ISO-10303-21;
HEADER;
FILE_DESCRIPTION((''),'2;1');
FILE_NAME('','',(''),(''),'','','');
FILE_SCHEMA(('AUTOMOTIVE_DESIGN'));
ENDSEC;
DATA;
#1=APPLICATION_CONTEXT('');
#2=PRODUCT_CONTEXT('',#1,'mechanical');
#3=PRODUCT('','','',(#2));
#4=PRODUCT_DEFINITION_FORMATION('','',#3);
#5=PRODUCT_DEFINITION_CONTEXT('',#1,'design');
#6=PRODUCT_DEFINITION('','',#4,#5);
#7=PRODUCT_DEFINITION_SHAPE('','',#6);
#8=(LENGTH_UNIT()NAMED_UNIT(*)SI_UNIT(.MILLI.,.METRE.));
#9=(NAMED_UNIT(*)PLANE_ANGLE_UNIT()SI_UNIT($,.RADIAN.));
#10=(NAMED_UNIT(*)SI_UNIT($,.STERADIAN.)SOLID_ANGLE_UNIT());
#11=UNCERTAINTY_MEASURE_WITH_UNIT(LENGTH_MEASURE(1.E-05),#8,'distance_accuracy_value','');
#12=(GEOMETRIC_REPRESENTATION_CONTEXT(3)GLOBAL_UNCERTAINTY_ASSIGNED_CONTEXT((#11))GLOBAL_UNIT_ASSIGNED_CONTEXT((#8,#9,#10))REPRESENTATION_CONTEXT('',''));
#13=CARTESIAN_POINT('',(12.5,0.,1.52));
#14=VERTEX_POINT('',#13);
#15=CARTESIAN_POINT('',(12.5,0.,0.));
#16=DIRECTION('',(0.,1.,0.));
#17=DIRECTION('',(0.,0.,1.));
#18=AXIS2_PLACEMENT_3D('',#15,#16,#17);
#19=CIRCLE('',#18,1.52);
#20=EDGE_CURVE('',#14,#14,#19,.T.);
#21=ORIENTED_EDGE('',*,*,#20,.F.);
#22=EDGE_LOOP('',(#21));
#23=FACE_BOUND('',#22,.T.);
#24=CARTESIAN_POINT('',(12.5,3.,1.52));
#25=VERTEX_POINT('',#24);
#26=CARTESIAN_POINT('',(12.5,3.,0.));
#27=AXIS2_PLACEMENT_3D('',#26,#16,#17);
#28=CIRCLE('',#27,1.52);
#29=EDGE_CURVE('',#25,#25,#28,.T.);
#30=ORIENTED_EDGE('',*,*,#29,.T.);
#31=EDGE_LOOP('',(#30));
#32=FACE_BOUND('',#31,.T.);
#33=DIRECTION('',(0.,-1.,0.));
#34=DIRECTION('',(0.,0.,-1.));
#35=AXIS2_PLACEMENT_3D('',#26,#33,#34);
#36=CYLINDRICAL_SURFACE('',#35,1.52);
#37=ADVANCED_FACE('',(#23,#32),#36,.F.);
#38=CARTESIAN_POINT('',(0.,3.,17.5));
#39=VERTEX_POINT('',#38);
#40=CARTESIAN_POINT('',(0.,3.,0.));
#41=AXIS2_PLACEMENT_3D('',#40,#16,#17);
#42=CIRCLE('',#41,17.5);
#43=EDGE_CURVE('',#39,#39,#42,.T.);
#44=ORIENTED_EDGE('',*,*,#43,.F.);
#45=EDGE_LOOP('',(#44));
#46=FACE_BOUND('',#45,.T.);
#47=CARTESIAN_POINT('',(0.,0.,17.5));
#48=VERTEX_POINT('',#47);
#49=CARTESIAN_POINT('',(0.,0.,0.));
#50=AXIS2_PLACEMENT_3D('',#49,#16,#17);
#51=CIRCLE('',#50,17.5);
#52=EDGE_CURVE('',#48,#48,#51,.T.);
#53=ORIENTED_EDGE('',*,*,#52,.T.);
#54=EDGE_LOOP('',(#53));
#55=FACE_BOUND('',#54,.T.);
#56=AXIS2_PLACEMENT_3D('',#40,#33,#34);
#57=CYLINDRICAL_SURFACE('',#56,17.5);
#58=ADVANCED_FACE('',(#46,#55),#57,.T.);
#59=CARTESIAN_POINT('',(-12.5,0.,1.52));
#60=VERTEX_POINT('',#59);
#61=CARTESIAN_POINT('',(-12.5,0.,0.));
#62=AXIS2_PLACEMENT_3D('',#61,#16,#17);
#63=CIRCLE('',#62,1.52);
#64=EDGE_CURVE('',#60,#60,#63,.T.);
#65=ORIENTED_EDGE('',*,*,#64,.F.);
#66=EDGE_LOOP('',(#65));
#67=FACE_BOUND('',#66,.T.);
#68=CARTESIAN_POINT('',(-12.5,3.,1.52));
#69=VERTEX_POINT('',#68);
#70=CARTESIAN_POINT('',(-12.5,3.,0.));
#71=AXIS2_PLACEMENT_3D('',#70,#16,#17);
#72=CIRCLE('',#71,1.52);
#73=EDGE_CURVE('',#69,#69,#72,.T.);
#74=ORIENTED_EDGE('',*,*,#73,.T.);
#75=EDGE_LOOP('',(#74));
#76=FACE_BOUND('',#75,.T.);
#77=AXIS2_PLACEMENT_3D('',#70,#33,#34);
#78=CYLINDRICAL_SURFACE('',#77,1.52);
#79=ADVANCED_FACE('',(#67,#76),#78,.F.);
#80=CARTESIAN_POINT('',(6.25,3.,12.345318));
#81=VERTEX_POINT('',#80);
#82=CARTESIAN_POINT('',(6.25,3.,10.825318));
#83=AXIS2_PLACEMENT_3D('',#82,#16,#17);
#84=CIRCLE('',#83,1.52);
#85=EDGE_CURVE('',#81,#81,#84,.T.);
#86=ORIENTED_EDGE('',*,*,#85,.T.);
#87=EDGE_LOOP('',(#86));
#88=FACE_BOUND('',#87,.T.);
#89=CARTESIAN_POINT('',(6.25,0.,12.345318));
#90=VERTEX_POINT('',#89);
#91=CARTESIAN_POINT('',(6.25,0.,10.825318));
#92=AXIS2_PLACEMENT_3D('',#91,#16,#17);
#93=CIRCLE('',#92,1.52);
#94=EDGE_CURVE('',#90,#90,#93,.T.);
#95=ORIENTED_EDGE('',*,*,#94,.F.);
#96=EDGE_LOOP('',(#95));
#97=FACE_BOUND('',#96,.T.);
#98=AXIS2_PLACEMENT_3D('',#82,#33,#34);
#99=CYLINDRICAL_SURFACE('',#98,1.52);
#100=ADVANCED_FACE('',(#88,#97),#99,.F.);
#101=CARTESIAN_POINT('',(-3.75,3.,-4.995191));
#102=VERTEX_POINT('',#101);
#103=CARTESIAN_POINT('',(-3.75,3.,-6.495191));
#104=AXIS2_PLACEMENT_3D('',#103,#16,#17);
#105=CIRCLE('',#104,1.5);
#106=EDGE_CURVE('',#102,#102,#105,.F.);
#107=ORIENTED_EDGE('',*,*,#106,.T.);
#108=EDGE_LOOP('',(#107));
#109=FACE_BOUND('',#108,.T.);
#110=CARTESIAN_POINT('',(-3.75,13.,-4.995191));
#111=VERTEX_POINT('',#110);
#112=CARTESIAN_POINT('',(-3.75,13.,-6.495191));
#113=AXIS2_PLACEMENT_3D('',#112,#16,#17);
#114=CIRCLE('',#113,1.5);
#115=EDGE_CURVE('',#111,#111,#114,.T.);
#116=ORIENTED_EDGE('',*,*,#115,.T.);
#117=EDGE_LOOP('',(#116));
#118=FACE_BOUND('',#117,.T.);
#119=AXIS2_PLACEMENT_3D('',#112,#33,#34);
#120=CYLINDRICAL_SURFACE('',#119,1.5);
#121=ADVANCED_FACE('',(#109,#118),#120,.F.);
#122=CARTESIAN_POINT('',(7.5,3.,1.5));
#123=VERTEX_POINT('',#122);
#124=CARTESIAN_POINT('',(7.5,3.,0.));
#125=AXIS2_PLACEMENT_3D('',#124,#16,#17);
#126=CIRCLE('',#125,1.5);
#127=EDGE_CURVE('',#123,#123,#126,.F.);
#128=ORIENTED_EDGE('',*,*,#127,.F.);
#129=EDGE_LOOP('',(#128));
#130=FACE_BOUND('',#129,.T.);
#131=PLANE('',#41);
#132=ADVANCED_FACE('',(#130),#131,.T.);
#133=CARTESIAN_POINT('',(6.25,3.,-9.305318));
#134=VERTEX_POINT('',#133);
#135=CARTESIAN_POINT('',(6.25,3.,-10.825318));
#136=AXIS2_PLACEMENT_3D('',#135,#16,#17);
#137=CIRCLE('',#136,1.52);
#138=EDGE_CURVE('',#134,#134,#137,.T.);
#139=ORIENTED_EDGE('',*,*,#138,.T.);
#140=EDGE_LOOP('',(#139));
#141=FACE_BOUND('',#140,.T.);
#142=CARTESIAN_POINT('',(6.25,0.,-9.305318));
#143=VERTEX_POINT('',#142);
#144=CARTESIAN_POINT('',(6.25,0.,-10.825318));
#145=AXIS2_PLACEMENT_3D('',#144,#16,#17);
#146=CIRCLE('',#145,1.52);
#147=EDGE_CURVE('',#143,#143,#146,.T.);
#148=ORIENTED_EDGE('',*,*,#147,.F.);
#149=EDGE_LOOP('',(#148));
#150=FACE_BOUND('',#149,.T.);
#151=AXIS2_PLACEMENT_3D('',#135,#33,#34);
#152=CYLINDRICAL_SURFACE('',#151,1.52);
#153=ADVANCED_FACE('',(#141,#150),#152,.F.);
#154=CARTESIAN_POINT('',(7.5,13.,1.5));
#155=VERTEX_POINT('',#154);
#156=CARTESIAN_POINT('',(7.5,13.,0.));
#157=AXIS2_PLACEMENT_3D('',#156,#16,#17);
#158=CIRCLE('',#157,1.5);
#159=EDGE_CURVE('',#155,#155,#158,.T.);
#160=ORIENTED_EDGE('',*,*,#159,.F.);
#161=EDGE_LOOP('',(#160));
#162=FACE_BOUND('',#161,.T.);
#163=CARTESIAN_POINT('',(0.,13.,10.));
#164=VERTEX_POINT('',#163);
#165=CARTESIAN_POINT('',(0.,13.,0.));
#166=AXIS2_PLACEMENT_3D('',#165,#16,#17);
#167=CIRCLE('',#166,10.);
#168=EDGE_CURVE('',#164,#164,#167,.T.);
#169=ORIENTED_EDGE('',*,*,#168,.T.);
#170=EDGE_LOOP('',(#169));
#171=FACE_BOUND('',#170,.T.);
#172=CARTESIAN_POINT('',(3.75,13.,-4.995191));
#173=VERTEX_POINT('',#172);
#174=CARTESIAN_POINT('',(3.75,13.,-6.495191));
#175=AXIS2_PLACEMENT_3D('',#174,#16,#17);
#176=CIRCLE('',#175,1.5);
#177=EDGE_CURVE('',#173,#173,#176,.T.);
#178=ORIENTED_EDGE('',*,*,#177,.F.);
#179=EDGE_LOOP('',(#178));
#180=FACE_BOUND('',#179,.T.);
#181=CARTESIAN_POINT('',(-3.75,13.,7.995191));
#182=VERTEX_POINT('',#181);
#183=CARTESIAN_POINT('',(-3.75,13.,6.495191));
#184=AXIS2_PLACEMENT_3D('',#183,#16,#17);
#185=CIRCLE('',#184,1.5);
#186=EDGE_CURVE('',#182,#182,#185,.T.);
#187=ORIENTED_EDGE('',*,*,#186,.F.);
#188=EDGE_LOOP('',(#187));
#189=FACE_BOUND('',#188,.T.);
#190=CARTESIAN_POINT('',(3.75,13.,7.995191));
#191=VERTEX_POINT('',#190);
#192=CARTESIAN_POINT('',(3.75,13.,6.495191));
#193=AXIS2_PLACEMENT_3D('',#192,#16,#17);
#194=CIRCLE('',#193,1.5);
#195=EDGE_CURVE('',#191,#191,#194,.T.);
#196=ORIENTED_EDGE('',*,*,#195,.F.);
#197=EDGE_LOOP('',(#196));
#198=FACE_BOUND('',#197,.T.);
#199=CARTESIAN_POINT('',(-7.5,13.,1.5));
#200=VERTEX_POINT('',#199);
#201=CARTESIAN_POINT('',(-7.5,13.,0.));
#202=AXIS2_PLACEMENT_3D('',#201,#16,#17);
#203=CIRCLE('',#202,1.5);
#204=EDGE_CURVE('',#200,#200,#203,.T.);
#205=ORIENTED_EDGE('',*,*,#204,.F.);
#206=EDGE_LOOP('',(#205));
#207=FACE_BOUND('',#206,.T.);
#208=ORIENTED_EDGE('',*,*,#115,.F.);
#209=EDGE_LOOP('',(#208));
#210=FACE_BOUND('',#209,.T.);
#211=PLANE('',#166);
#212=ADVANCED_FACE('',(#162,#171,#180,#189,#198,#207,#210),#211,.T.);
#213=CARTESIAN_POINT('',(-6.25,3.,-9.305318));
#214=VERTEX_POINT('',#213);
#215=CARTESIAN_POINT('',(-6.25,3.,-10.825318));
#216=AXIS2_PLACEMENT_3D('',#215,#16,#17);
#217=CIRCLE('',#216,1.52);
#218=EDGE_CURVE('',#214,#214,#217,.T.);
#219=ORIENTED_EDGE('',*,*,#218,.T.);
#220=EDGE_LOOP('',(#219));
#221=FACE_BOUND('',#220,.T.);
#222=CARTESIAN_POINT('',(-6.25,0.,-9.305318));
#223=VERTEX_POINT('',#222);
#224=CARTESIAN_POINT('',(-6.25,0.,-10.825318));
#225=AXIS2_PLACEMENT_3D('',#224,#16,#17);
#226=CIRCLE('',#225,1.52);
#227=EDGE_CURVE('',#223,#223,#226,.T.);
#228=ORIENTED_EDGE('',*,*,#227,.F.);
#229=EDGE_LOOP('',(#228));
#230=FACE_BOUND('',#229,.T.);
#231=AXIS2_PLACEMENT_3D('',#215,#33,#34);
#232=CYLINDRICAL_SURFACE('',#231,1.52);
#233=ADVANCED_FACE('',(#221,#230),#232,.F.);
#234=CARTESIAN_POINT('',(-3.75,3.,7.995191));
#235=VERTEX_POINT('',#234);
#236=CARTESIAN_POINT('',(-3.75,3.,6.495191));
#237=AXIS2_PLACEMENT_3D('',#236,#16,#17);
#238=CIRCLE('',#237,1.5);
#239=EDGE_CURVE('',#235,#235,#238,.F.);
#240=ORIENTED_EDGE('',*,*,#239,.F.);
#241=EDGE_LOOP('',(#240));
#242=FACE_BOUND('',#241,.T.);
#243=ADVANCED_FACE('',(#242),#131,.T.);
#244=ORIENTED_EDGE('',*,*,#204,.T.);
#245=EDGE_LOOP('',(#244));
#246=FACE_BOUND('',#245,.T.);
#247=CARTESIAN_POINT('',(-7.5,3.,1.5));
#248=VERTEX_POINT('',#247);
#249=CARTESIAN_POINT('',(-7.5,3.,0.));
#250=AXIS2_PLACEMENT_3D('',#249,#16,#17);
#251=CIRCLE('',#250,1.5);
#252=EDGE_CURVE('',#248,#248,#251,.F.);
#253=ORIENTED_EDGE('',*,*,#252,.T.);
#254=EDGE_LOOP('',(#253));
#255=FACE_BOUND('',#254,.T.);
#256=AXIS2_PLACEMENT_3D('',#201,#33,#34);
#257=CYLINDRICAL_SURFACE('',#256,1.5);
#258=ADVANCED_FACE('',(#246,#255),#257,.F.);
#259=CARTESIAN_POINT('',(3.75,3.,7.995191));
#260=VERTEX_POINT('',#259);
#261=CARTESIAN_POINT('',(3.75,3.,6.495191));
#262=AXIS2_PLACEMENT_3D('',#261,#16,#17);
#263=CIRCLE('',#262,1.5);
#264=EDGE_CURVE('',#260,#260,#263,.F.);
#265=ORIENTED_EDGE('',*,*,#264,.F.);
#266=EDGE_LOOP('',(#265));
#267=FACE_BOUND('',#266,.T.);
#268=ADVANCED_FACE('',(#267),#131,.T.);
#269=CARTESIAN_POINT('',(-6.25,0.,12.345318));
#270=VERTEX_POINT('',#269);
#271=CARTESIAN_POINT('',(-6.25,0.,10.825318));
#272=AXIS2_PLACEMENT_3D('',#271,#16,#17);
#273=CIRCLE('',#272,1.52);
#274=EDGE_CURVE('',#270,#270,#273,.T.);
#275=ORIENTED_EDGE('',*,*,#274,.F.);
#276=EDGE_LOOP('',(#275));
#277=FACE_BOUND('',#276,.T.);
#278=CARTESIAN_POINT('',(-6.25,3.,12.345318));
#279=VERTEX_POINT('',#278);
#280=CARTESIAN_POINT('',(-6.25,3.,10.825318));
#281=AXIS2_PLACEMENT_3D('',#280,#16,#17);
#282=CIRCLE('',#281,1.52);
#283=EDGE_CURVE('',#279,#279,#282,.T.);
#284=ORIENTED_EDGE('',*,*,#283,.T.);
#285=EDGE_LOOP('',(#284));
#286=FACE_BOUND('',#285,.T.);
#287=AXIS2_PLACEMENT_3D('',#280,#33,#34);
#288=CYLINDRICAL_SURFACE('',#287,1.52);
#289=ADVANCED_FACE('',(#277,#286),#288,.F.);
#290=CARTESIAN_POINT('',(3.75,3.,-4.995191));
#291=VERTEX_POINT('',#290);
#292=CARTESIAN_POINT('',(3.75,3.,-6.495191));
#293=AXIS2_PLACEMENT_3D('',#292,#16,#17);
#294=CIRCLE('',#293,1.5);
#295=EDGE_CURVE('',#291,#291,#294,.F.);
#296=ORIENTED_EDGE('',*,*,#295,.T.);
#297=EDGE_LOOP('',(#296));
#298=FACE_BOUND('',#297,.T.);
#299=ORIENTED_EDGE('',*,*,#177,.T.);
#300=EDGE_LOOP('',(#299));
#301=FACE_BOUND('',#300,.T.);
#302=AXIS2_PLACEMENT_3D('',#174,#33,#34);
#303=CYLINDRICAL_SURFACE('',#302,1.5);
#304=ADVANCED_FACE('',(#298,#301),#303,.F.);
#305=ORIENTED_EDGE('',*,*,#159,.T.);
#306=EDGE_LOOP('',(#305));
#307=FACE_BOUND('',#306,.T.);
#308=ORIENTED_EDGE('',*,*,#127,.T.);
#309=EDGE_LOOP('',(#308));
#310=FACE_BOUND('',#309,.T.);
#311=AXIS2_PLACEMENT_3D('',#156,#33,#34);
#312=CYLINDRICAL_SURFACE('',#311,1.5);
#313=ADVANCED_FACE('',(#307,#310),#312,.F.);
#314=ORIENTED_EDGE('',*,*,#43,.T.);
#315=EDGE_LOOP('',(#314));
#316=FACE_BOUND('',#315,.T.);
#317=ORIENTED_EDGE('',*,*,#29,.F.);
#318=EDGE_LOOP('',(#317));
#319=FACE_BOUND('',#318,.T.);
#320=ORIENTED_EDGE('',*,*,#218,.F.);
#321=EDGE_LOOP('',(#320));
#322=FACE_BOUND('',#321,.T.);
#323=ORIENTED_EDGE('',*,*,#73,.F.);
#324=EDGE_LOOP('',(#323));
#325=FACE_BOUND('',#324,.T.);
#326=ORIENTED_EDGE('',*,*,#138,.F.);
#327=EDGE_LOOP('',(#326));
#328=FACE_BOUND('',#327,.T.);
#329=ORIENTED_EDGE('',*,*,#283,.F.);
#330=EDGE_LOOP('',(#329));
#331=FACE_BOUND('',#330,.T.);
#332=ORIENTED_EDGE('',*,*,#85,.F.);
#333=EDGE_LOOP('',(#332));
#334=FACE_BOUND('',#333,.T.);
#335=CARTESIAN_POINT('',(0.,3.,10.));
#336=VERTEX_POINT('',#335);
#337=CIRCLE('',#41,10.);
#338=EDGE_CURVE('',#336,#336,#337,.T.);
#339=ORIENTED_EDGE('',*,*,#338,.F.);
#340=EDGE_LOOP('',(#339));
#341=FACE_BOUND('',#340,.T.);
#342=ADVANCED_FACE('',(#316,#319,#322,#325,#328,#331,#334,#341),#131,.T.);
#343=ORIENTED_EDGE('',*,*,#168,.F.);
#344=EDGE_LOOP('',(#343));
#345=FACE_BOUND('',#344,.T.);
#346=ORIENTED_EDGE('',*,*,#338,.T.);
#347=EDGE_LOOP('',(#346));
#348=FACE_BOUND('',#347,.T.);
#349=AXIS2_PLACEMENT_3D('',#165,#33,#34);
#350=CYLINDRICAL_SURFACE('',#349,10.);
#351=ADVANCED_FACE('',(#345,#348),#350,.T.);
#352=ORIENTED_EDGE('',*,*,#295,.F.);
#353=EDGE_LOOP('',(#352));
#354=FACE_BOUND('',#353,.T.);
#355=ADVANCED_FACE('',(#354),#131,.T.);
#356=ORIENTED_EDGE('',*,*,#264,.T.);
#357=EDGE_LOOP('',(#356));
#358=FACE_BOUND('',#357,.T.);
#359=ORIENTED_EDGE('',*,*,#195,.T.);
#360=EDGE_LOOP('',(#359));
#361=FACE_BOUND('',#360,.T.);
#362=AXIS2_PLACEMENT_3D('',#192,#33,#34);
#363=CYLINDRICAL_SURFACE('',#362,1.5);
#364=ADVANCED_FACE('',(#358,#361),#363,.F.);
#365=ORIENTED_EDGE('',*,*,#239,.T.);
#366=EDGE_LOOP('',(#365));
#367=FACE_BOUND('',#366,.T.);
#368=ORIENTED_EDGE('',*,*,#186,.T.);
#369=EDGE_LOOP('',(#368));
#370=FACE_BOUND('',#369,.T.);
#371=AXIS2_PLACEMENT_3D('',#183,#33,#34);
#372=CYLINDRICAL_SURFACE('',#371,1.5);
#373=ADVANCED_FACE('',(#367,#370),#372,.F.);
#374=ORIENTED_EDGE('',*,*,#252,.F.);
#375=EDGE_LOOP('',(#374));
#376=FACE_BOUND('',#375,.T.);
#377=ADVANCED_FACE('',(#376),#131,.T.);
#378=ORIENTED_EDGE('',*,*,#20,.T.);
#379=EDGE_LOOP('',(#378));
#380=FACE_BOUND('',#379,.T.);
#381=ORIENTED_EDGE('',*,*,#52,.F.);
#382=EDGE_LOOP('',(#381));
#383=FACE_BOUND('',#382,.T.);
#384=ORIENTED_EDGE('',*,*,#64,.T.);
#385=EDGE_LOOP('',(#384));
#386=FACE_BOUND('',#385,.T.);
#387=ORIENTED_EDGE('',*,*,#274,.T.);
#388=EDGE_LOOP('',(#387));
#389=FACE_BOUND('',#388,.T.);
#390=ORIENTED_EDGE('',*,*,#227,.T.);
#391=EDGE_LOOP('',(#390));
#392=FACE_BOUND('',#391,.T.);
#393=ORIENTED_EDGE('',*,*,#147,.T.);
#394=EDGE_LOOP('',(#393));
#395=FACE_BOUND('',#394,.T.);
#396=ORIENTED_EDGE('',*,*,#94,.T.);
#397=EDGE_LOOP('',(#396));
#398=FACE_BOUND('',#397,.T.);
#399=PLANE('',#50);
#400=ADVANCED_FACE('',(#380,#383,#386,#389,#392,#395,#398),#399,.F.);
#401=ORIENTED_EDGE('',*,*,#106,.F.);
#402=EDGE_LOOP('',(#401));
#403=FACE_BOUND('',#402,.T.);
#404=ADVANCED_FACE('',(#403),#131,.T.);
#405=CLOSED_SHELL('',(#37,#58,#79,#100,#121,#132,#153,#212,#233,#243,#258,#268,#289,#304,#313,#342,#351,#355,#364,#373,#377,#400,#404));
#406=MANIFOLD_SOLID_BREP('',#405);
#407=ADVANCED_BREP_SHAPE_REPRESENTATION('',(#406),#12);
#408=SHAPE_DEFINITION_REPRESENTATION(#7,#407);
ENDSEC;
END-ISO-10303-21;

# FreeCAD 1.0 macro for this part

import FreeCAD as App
import Part
import Sketcher
from FreeCAD import Vector

doc = App.newDocument("Part")
params = doc.addObject("Spreadsheet::Sheet", "Params")
for row, (alias, value) in enumerate([
    ("sketch1_diameter", "35 mm"),
    ("sketch1_diameter2", "3.04 mm"),
    ("pad1_length", "3 mm"),
    ("sketch2_diameter", "20 mm"),
    ("sketch2_diameter2", "3 mm"),
    ("pad2_length", "10 mm"),
], start=1):
    params.set(f"A{row}", alias)
    params.set(f"B{row}", "=" + value)
    params.setAlias(f"B{row}", alias)

body = doc.addObject("PartDesign::Body", "Body")

# Sketch on XZ plane
sketch1 = doc.addObject("Sketcher::SketchObject", "Sketch")
body.addObject(sketch1)
sketch1.AttachmentSupport = (doc.XZ_Plane, [""])
sketch1.MapMode = "FlatFace"
sketch1.addGeometry([
    Part.Circle(Vector(0, 0, 0), Vector(0, 0, 1), 17.5),  # 0
    Part.Circle(Vector(-6.2, -10.8, 0), Vector(0, 0, 1), 1.5),  # 1
    Part.Circle(Vector(-12.5, 0, 0), Vector(0, 0, 1), 1.5),  # 2
    Part.Circle(Vector(-6.2, 10.8, 0), Vector(0, 0, 1), 1.5),  # 3
    Part.Circle(Vector(6.2, -10.8, 0), Vector(0, 0, 1), 1.5),  # 4
    Part.Circle(Vector(12.5, 0, 0), Vector(0, 0, 1), 1.5),  # 5
    Part.Circle(Vector(6.2, 10.8, 0), Vector(0, 0, 1), 1.5),  # 6
], False)
sketch1.addConstraint([
    Sketcher.Constraint("Coincident", 0, 3, -1, 1),
    Sketcher.Constraint("Equal", 1, 2),
    Sketcher.Constraint("Equal", 2, 3),
    Sketcher.Constraint("Equal", 3, 4),
    Sketcher.Constraint("Equal", 4, 5),
    Sketcher.Constraint("Equal", 5, 6),
    Sketcher.Constraint("Symmetric", 3, 3, 4, 3, -1, 1),
    Sketcher.Constraint("Symmetric", 2, 3, 5, 3, -1, 1),
    Sketcher.Constraint("Symmetric", 1, 3, 6, 3, -1, 1),
    Sketcher.Constraint("Symmetric", 1, 3, 4, 3, -2),
    Sketcher.Constraint("PointOnObject", 2, 3, -1),
    Sketcher.Constraint("Diameter", 0, 35.0),
    Sketcher.Constraint("Diameter", 1, 3.04),
    Sketcher.Constraint("DistanceX", 2, 3, 5, 3, 25.0),
    Sketcher.Constraint("DistanceX", 1, 3, 4, 3, 12.5),
    Sketcher.Constraint("DistanceY", 1, 3, -1, 1, 10.825318),
])
sketch1.setExpression("Constraints[11]", "Params.sketch1_diameter")
sketch1.setExpression("Constraints[12]", "Params.sketch1_diameter2")
pad1 = doc.addObject("PartDesign::Pad", "Pad")
body.addObject(pad1)
pad1.Profile = sketch1
pad1.setExpression("Length", "Params.pad1_length")
pad1.Reversed = True

# Sketch on XZ plane
sketch2 = doc.addObject("Sketcher::SketchObject", "Sketch001")
body.addObject(sketch2)
sketch2.AttachmentSupport = (doc.XZ_Plane, [""])
sketch2.MapMode = "FlatFace"
sketch2.AttachmentOffset = App.Placement(Vector(0, 0, -3), App.Rotation())
sketch2.addGeometry([
    Part.Circle(Vector(0, 0, 0), Vector(0, 0, 1), 10),  # 0
    Part.Circle(Vector(-3.8, -6.5, 0), Vector(0, 0, 1), 1.5),  # 1
    Part.Circle(Vector(-7.5, 0, 0), Vector(0, 0, 1), 1.5),  # 2
    Part.Circle(Vector(-3.8, 6.5, 0), Vector(0, 0, 1), 1.5),  # 3
    Part.Circle(Vector(3.8, -6.5, 0), Vector(0, 0, 1), 1.5),  # 4
    Part.Circle(Vector(7.5, 0, 0), Vector(0, 0, 1), 1.5),  # 5
    Part.Circle(Vector(3.8, 6.5, 0), Vector(0, 0, 1), 1.5),  # 6
], False)
sketch2.addConstraint([
    Sketcher.Constraint("Coincident", 0, 3, -1, 1),
    Sketcher.Constraint("Equal", 1, 2),
    Sketcher.Constraint("Equal", 2, 3),
    Sketcher.Constraint("Equal", 3, 4),
    Sketcher.Constraint("Equal", 4, 5),
    Sketcher.Constraint("Equal", 5, 6),
    Sketcher.Constraint("Symmetric", 3, 3, 4, 3, -1, 1),
    Sketcher.Constraint("Symmetric", 2, 3, 5, 3, -1, 1),
    Sketcher.Constraint("Symmetric", 1, 3, 6, 3, -1, 1),
    Sketcher.Constraint("Symmetric", 1, 3, 4, 3, -2),
    Sketcher.Constraint("PointOnObject", 2, 3, -1),
    Sketcher.Constraint("Diameter", 0, 20.0),
    Sketcher.Constraint("Diameter", 1, 3.0),
    Sketcher.Constraint("DistanceX", 2, 3, 5, 3, 15.0),
    Sketcher.Constraint("DistanceX", 1, 3, 4, 3, 7.5),
    Sketcher.Constraint("DistanceY", 1, 3, -1, 1, 6.495191),
])
sketch2.setExpression("Constraints[11]", "Params.sketch2_diameter")
sketch2.setExpression("Constraints[12]", "Params.sketch2_diameter2")
pad2 = doc.addObject("PartDesign::Pad", "Pad001")
body.addObject(pad2)
pad2.Profile = sketch2
pad2.setExpression("Length", "Params.pad2_length")
pad2.Reversed = True

doc.recompute()
